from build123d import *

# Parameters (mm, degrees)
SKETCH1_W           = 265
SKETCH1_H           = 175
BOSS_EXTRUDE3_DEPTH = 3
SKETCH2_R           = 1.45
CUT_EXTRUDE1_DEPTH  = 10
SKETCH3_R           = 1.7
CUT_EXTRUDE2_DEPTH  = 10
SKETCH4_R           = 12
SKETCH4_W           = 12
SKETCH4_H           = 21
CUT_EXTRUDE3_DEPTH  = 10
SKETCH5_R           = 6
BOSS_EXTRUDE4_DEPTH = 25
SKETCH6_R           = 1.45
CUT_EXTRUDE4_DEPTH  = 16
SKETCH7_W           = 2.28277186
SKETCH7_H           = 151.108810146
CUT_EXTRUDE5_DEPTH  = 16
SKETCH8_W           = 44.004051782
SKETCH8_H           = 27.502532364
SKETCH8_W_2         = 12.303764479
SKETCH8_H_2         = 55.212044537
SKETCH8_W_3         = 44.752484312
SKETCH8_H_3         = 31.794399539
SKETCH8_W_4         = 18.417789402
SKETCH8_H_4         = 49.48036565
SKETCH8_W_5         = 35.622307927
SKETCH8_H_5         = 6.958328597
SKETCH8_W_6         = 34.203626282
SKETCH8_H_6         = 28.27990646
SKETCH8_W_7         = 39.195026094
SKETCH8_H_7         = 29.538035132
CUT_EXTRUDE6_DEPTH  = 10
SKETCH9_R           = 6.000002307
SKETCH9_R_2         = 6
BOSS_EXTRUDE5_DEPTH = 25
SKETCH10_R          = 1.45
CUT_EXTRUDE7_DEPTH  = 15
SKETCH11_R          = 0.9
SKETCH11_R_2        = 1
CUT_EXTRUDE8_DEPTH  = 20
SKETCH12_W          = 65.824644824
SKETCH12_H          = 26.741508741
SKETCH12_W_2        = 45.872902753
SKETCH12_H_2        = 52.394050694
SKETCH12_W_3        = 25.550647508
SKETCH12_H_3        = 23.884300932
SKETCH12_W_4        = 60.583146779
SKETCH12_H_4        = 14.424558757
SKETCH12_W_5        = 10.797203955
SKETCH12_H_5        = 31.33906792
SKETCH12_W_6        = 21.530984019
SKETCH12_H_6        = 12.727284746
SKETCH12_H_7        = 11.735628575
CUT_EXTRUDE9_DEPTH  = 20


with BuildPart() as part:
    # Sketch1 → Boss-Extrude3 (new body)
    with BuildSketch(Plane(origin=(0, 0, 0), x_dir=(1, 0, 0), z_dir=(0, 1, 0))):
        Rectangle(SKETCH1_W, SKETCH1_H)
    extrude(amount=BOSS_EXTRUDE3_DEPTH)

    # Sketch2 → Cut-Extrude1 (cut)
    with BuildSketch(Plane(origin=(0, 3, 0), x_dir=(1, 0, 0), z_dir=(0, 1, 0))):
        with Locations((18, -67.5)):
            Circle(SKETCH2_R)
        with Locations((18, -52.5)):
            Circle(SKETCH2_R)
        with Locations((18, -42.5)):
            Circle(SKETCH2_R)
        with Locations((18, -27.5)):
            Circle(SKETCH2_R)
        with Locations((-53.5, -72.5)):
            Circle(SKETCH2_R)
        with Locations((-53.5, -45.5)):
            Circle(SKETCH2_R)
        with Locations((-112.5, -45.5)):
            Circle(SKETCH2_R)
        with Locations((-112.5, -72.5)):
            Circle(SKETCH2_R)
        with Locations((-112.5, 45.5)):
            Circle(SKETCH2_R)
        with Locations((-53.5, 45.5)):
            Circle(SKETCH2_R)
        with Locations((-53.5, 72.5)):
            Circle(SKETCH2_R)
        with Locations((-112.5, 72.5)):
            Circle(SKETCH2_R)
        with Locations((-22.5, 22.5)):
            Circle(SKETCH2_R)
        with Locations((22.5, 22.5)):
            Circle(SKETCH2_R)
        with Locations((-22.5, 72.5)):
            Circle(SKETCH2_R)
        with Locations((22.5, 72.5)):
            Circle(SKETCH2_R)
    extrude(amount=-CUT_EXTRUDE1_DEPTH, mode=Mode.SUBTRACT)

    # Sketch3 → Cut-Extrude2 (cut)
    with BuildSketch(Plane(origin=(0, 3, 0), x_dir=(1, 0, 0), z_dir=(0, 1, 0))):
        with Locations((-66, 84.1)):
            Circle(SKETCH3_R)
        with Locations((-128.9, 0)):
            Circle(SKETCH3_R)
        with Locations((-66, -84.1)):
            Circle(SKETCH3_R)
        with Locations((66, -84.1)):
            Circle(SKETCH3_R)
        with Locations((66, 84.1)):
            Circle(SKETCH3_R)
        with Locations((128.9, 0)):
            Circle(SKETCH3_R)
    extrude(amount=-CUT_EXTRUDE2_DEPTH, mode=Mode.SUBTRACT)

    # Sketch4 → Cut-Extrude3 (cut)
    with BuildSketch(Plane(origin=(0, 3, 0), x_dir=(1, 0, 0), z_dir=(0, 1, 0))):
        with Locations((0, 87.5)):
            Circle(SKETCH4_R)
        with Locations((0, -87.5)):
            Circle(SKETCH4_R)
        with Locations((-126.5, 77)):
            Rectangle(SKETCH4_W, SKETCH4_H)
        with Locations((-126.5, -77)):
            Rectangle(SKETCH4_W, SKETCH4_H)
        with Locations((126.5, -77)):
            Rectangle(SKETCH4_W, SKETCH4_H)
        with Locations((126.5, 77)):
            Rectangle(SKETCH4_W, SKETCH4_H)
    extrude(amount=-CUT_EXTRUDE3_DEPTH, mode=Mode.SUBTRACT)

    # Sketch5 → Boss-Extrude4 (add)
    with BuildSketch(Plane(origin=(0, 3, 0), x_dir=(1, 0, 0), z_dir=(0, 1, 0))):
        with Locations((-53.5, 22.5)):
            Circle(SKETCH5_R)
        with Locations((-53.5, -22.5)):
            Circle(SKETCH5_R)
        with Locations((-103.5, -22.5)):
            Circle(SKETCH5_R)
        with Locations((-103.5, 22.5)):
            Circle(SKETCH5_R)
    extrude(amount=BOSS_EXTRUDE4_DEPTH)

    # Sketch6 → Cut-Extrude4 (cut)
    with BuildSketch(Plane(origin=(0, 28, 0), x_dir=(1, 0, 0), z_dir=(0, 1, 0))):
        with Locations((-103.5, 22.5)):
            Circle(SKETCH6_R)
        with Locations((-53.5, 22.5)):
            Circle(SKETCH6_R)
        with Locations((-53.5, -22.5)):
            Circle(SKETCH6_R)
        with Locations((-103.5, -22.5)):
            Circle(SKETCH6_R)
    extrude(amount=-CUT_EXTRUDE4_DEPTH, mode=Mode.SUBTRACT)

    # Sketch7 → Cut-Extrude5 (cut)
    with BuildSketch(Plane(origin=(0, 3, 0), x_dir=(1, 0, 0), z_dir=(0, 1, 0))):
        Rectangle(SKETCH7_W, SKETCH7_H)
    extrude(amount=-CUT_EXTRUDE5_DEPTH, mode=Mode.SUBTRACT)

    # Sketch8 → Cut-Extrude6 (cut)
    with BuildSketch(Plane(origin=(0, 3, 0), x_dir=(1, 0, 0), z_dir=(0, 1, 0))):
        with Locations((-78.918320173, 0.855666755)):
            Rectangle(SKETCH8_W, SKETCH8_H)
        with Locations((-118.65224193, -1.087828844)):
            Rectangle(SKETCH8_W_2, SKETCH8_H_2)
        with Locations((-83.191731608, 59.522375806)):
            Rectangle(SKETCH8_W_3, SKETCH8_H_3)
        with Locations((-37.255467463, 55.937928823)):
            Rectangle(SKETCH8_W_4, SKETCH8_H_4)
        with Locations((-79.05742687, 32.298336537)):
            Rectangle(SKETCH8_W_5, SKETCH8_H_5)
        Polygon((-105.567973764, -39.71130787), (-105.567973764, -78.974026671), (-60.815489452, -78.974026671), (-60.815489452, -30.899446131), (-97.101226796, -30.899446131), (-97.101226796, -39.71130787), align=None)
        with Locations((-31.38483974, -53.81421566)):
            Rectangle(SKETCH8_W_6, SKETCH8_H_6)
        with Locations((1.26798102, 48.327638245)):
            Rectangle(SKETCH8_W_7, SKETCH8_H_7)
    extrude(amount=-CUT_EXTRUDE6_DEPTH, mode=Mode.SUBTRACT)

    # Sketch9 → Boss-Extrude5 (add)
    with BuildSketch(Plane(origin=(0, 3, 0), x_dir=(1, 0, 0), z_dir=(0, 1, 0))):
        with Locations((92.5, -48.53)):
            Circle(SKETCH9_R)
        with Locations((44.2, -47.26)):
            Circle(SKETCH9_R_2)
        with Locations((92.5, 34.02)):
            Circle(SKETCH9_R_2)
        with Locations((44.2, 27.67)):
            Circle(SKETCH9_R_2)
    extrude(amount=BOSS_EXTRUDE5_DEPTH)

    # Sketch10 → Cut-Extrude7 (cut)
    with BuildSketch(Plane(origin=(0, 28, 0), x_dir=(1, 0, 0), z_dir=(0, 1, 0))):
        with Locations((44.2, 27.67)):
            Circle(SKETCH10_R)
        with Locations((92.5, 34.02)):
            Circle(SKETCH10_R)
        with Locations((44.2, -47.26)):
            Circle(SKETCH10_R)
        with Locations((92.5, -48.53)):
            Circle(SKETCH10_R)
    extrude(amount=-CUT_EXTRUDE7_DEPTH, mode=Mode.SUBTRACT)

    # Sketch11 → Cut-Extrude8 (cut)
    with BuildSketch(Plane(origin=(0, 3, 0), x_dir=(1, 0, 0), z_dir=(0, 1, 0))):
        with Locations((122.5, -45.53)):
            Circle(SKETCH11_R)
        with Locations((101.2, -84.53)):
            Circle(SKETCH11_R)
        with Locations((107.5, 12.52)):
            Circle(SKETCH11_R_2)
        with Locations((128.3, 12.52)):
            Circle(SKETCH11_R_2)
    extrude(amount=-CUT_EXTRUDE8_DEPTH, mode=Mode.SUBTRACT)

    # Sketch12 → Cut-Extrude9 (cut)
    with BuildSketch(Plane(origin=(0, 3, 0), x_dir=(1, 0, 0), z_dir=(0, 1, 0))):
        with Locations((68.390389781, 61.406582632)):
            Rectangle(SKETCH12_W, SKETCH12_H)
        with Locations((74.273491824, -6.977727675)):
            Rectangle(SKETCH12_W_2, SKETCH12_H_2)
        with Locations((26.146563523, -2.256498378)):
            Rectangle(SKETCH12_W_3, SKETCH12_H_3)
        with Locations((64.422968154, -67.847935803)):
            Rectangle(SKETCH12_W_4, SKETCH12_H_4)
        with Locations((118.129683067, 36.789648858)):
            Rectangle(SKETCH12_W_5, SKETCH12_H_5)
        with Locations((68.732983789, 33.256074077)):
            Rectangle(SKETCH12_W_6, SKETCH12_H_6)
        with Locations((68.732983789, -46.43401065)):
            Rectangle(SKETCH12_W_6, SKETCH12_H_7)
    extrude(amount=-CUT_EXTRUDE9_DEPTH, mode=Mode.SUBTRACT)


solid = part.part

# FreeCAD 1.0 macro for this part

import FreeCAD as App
import Part
import Sketcher

V = App.Vector
Q = App.Units.Quantity

doc = App.newDocument("Part")
body = doc.addObject("PartDesign::Body", "Body")
body.AllowCompound = True

# Sketch on XZ plane
sketch1 = body.newObject("Sketcher::SketchObject", "Sketch")
sketch1.AttachmentSupport = (doc.getObject("XZ_Plane"), [""])
sketch1.MapMode = "FlatFace"
sketch1.addGeometry([
    Part.LineSegment(V(-132, -88, 0), V(-132, 88, 0)),
    Part.LineSegment(V(-132, 88, 0), V(132, 88, 0)),
    Part.LineSegment(V(132, 88, 0), V(132, -88, 0)),
    Part.LineSegment(V(132, -88, 0), V(-132, -88, 0)),
], False)
sketch1.addConstraint([
    Sketcher.Constraint("Coincident", 0, 2, 1, 1),
    Sketcher.Constraint("Coincident", 1, 2, 2, 1),
    Sketcher.Constraint("Coincident", 2, 2, 3, 1),
    Sketcher.Constraint("Coincident", 3, 2, 0, 1),
    Sketcher.Constraint("Vertical", 0),
    Sketcher.Constraint("Horizontal", 1),
    Sketcher.Constraint("Vertical", 2),
    Sketcher.Constraint("Horizontal", 3),
    Sketcher.Constraint("Symmetric", 0, 2, 2, 2, -1, 1),
    Sketcher.Constraint("DistanceX", 1, 1, 1, 2, Q("265 mm")),
    Sketcher.Constraint("DistanceY", 0, 1, 0, 2, Q("175 mm")),
])
pad1 = body.newObject("PartDesign::Pad", "Pad")
pad1.Profile = sketch1
pad1.Length = 3
pad1.Reversed = True

# Sketch on XZ plane
sketch2 = body.newObject("Sketcher::SketchObject", "Sketch001")
sketch2.AttachmentSupport = (doc.getObject("XZ_Plane"), [""])
sketch2.MapMode = "FlatFace"
sketch2.AttachmentOffset = App.Placement(V(0, 0, -3), App.Rotation())
sketch2.addGeometry([
    Part.Circle(V(18, 67.5, 0), V(0, 0, 1), 1.4),  # 0
    Part.Circle(V(18, 52.5, 0), V(0, 0, 1), 1.4),  # 1
    Part.Circle(V(18, 42.5, 0), V(0, 0, 1), 1.4),  # 2
    Part.Circle(V(18, 27.5, 0), V(0, 0, 1), 1.4),  # 3
    Part.Circle(V(-53.5, 72.5, 0), V(0, 0, 1), 1.4),  # 4
    Part.Circle(V(-53.5, 45.5, 0), V(0, 0, 1), 1.4),  # 5
    Part.Circle(V(-112.5, 45.5, 0), V(0, 0, 1), 1.4),  # 6
    Part.Circle(V(-112.5, 72.5, 0), V(0, 0, 1), 1.4),  # 7
    Part.Circle(V(-112.5, -45.5, 0), V(0, 0, 1), 1.4),  # 8
    Part.Circle(V(-53.5, -45.5, 0), V(0, 0, 1), 1.4),  # 9
    Part.Circle(V(-53.5, -72.5, 0), V(0, 0, 1), 1.4),  # 10
    Part.Circle(V(-112.5, -72.5, 0), V(0, 0, 1), 1.4),  # 11
    Part.Circle(V(-22.5, -22.5, 0), V(0, 0, 1), 1.4),  # 12
    Part.Circle(V(22.5, -22.5, 0), V(0, 0, 1), 1.4),  # 13
    Part.Circle(V(-22.5, -72.5, 0), V(0, 0, 1), 1.4),  # 14
    Part.Circle(V(22.5, -72.5, 0), V(0, 0, 1), 1.4),  # 15
], False)
sketch2.addConstraint([
    Sketcher.Constraint("Equal", 0, 1),
    Sketcher.Constraint("Equal", 1, 2),
    Sketcher.Constraint("Equal", 2, 3),
    Sketcher.Constraint("Equal", 3, 4),
    Sketcher.Constraint("Equal", 4, 5),
    Sketcher.Constraint("Equal", 5, 6),
    Sketcher.Constraint("Equal", 6, 7),
    Sketcher.Constraint("Equal", 7, 8),
    Sketcher.Constraint("Equal", 8, 9),
    Sketcher.Constraint("Equal", 9, 10),
    Sketcher.Constraint("Equal", 10, 11),
    Sketcher.Constraint("Equal", 11, 12),
    Sketcher.Constraint("Equal", 12, 13),
    Sketcher.Constraint("Equal", 13, 14),
    Sketcher.Constraint("Equal", 14, 15),
    Sketcher.Constraint("Symmetric", 12, 3, 13, 3, -2),
    Sketcher.Constraint("Symmetric", 14, 3, 15, 3, -2),
    Sketcher.Constraint("Symmetric", 6, 3, 8, 3, -1),
    Sketcher.Constraint("Symmetric", 5, 3, 9, 3, -1),
    Sketcher.Constraint("Symmetric", 4, 3, 10, 3, -1),
    Sketcher.Constraint("Symmetric", 7, 3, 11, 3, -1),
    Sketcher.Constraint("Horizontal", 5, 3, 6, 3),
    Sketcher.Constraint("Horizontal", 4, 3, 7, 3),
    Sketcher.Constraint("Horizontal", 11, 3, 14, 3),
    Sketcher.Constraint("Vertical", 0, 3, 1, 3),
    Sketcher.Constraint("Vertical", 1, 3, 2, 3),
    Sketcher.Constraint("Vertical", 2, 3, 3, 3),
    Sketcher.Constraint("Vertical", 4, 3, 5, 3),
    Sketcher.Constraint("Vertical", 6, 3, 7, 3),
    Sketcher.Constraint("Vertical", 12, 3, 14, 3),
    Sketcher.Constraint("Diameter", 0, Q("2.9 mm")),
    Sketcher.Constraint("DistanceX", -1, 1, 0, 3, Q("18 mm")),
    Sketcher.Constraint("DistanceY", 1, 3, 0, 3, Q("15 mm")),
    Sketcher.Constraint("DistanceY", 2, 3, 1, 3, Q("10 mm")),
    Sketcher.Constraint("DistanceY", 3, 3, 2, 3, Q("15 mm")),
    Sketcher.Constraint("DistanceY", 0, 3, 4, 3, Q("5 mm")),
    Sketcher.Constraint("DistanceY", 5, 3, 4, 3, Q("27 mm")),
    Sketcher.Constraint("DistanceX", 6, 3, 5, 3, Q("59 mm")),
    Sketcher.Constraint("DistanceY", 8, 3, 6, 3, Q("91 mm")),
    Sketcher.Constraint("DistanceX", 9, 3, 12, 3, Q("31 mm")),
    Sketcher.Constraint("DistanceY", 9, 3, 12, 3, Q("23 mm")),
    Sketcher.Constraint("DistanceX", 12, 3, 13, 3, Q("45 mm")),
])
pocket1 = body.newObject("PartDesign::Pocket", "Pocket")
pocket1.Profile = sketch2
pocket1.Length = 10
pocket1.Reversed = True

# Sketch on XZ plane
sketch3 = body.newObject("Sketcher::SketchObject", "Sketch002")
sketch3.AttachmentSupport = (doc.getObject("XZ_Plane"), [""])
sketch3.MapMode = "FlatFace"
sketch3.AttachmentOffset = App.Placement(V(0, 0, -3), App.Rotation())
sketch3.addGeometry([
    Part.Circle(V(-66, -84.1, 0), V(0, 0, 1), 1.7),  # 0
    Part.Circle(V(-128.9, 0, 0), V(0, 0, 1), 1.7),  # 1
    Part.Circle(V(-66, 84.1, 0), V(0, 0, 1), 1.7),  # 2
    Part.Circle(V(66, 84.1, 0), V(0, 0, 1), 1.7),  # 3
    Part.Circle(V(66, -84.1, 0), V(0, 0, 1), 1.7),  # 4
    Part.Circle(V(128.9, 0, 0), V(0, 0, 1), 1.7),  # 5
], False)
sketch3.addConstraint([
    Sketcher.Constraint("Equal", 0, 1),
    Sketcher.Constraint("Equal", 1, 2),
    Sketcher.Constraint("Equal", 2, 3),
    Sketcher.Constraint("Equal", 3, 4),
    Sketcher.Constraint("Equal", 4, 5),
    Sketcher.Constraint("Symmetric", 0, 3, 3, 3, -1, 1),
    Sketcher.Constraint("Symmetric", 2, 3, 4, 3, -1, 1),
    Sketcher.Constraint("Symmetric", 1, 3, 5, 3, -1, 1),
    Sketcher.Constraint("Symmetric", 2, 3, 3, 3, -2),
    Sketcher.Constraint("PointOnObject", 1, 3, -1),
    Sketcher.Constraint("Diameter", 0, Q("3.4 mm")),
    Sketcher.Constraint("DistanceX", 0, 3, -1, 1, Q("66 mm")),
    Sketcher.Constraint("DistanceY", 0, 3, -1, 1, Q("84.1 mm")),
    Sketcher.Constraint("DistanceX", 1, 3, -1, 1, Q("128.9 mm")),
])
pocket2 = body.newObject("PartDesign::Pocket", "Pocket001")
pocket2.Profile = sketch3
pocket2.Length = 10
pocket2.Reversed = True

# Sketch on XZ plane
sketch4 = body.newObject("Sketcher::SketchObject", "Sketch003")
sketch4.AttachmentSupport = (doc.getObject("XZ_Plane"), [""])
sketch4.MapMode = "FlatFace"
sketch4.AttachmentOffset = App.Placement(V(0, 0, -3), App.Rotation())
sketch4.addGeometry([
    Part.Circle(V(0, -88, 0), V(0, 0, 1), 12),  # 0
    Part.Circle(V(0, 88, 0), V(0, 0, 1), 12),  # 1
    Part.LineSegment(V(-132, -88, 0), V(-132, -66, 0)),  # 2
    Part.LineSegment(V(-132, -66, 0), V(-120, -66, 0)),  # 3
    Part.LineSegment(V(-120, -66, 0), V(-120, -88, 0)),  # 4
    Part.LineSegment(V(-120, -88, 0), V(-132, -88, 0)),  # 5
    Part.LineSegment(V(-132, 66, 0), V(-132, 88, 0)),  # 6
    Part.LineSegment(V(-132, 88, 0), V(-120, 88, 0)),  # 7
    Part.LineSegment(V(-120, 88, 0), V(-120, 66, 0)),  # 8
    Part.LineSegment(V(-120, 66, 0), V(-132, 66, 0)),  # 9
    Part.LineSegment(V(120, 66, 0), V(120, 88, 0)),  # 10
    Part.LineSegment(V(120, 88, 0), V(132, 88, 0)),  # 11
    Part.LineSegment(V(132, 88, 0), V(132, 66, 0)),  # 12
    Part.LineSegment(V(132, 66, 0), V(120, 66, 0)),  # 13
    Part.LineSegment(V(120, -88, 0), V(120, -66, 0)),  # 14
    Part.LineSegment(V(120, -66, 0), V(132, -66, 0)),  # 15
    Part.LineSegment(V(132, -66, 0), V(132, -88, 0)),  # 16
    Part.LineSegment(V(132, -88, 0), V(120, -88, 0)),  # 17
], False)
sketch4.addConstraint([
    Sketcher.Constraint("Coincident", 2, 2, 3, 1),
    Sketcher.Constraint("Coincident", 3, 2, 4, 1),
    Sketcher.Constraint("Coincident", 4, 2, 5, 1),
    Sketcher.Constraint("Coincident", 5, 2, 2, 1),
    Sketcher.Constraint("Coincident", 6, 2, 7, 1),
    Sketcher.Constraint("Coincident", 7, 2, 8, 1),
    Sketcher.Constraint("Coincident", 8, 2, 9, 1),
    Sketcher.Constraint("Coincident", 9, 2, 6, 1),
    Sketcher.Constraint("Coincident", 10, 2, 11, 1),
    Sketcher.Constraint("Coincident", 11, 2, 12, 1),
    Sketcher.Constraint("Coincident", 12, 2, 13, 1),
    Sketcher.Constraint("Coincident", 13, 2, 10, 1),
    Sketcher.Constraint("Coincident", 14, 2, 15, 1),
    Sketcher.Constraint("Coincident", 15, 2, 16, 1),
    Sketcher.Constraint("Coincident", 16, 2, 17, 1),
    Sketcher.Constraint("Coincident", 17, 2, 14, 1),
    Sketcher.Constraint("Vertical", 2),
    Sketcher.Constraint("Horizontal", 3),
    Sketcher.Constraint("Vertical", 4),
    Sketcher.Constraint("Horizontal", 5),
    Sketcher.Constraint("Vertical", 6),
    Sketcher.Constraint("Horizontal", 7),
    Sketcher.Constraint("Vertical", 8),
    Sketcher.Constraint("Horizontal", 9),
    Sketcher.Constraint("Vertical", 10),
    Sketcher.Constraint("Horizontal", 11),
    Sketcher.Constraint("Vertical", 12),
    Sketcher.Constraint("Horizontal", 13),
    Sketcher.Constraint("Vertical", 14),
    Sketcher.Constraint("Horizontal", 15),
    Sketcher.Constraint("Vertical", 16),
    Sketcher.Constraint("Horizontal", 17),
    Sketcher.Constraint("Equal", 0, 1),
    Sketcher.Constraint("Symmetric", 0, 3, 1, 3, -1, 1),
    Sketcher.Constraint("Symmetric", 4, 2, 10, 2, -1, 1),
    Sketcher.Constraint("Symmetric", 2, 2, 12, 2, -1, 1),
    Sketcher.Constraint("Symmetric", 8, 2, 14, 2, -1, 1),
    Sketcher.Constraint("Symmetric", 6, 2, 16, 2, -1, 1),
    Sketcher.Constraint("Symmetric", 7, 2, 10, 2, -2),
    Sketcher.Constraint("Symmetric", 9, 2, 12, 2, -2),
    Sketcher.Constraint("PointOnObject", 0, 3, -2),
    Sketcher.Constraint("Horizontal", 0, 3, 4, 2),
    Sketcher.Constraint("Diameter", 0, Q("24 mm")),
    Sketcher.Constraint("DistanceX", 3, 1, 3, 2, Q("12 mm")),
    Sketcher.Constraint("DistanceY", 2, 1, 2, 2, Q("21 mm")),
    Sketcher.Constraint("DistanceY", 0, 3, 1, 3, Q("175 mm")),
    Sketcher.Constraint("DistanceX", 7, 2, 10, 2, Q("241 mm")),
])
pocket3 = body.newObject("PartDesign::Pocket", "Pocket002")
pocket3.Profile = sketch4
pocket3.Length = 10
pocket3.Reversed = True

# Sketch on XZ plane
sketch5 = body.newObject("Sketcher::SketchObject", "Sketch004")
sketch5.AttachmentSupport = (doc.getObject("XZ_Plane"), [""])
sketch5.MapMode = "FlatFace"
sketch5.AttachmentOffset = App.Placement(V(0, 0, -3), App.Rotation())
sketch5.addGeometry([
    Part.Circle(V(-54, -22, 0), V(0, 0, 1), 6),
    Part.Circle(V(-54, 22, 0), V(0, 0, 1), 6),
    Part.Circle(V(-104, 22, 0), V(0, 0, 1), 6),
    Part.Circle(V(-104, -22, 0), V(0, 0, 1), 6),
], False)
sketch5.addConstraint([
    Sketcher.Constraint("Equal", 0, 1),
    Sketcher.Constraint("Equal", 1, 2),
    Sketcher.Constraint("Equal", 2, 3),
    Sketcher.Constraint("Symmetric", 0, 3, 1, 3, -1),
    Sketcher.Constraint("Symmetric", 2, 3, 3, 3, -1),
    Sketcher.Constraint("Horizontal", 1, 3, 2, 3),
    Sketcher.Constraint("Diameter", 0, Q("12 mm")),
    Sketcher.Constraint("DistanceY", 0, 3, 1, 3, Q("45 mm")),
    Sketcher.Constraint("DistanceX", 2, 3, 1, 3, Q("50 mm")),
    Sketcher.Constraint("DistanceX", 0, 3, -1, 1, Q("53.5 mm")),
])
pad2 = body.newObject("PartDesign::Pad", "Pad001")
pad2.Profile = sketch5
pad2.Length = 25
pad2.Reversed = True

# Sketch on XZ plane
sketch6 = body.newObject("Sketcher::SketchObject", "Sketch005")
sketch6.AttachmentSupport = (doc.getObject("XZ_Plane"), [""])
sketch6.MapMode = "FlatFace"
sketch6.AttachmentOffset = App.Placement(V(0, 0, -28), App.Rotation())
sketch6.addGeometry([
    Part.Circle(V(-103.5, -22.5, 0), V(0, 0, 1), 1.4),
    Part.Circle(V(-53.5, -22.5, 0), V(0, 0, 1), 1.4),
    Part.Circle(V(-53.5, 22.5, 0), V(0, 0, 1), 1.4),
    Part.Circle(V(-103.5, 22.5, 0), V(0, 0, 1), 1.4),
], False)
sketch6.addConstraint([
    Sketcher.Constraint("Equal", 0, 1),
    Sketcher.Constraint("Equal", 1, 2),
    Sketcher.Constraint("Equal", 2, 3),
    Sketcher.Constraint("Symmetric", 1, 3, 2, 3, -1),
    Sketcher.Constraint("Symmetric", 0, 3, 3, 3, -1),
    Sketcher.Constraint("Horizontal", 0, 3, 1, 3),
    Sketcher.Constraint("Diameter", 0, Q("2.9 mm")),
    Sketcher.Constraint("DistanceX", 0, 3, 1, 3, Q("50 mm")),
    Sketcher.Constraint("DistanceY", 1, 3, 2, 3, Q("45 mm")),
    Sketcher.Constraint("DistanceX", 0, 3, -1, 1, Q("103.5 mm")),
])
pocket4 = body.newObject("PartDesign::Pocket", "Pocket003")
pocket4.Profile = sketch6
pocket4.Length = 16
pocket4.Reversed = True

# Sketch on XZ plane
sketch7 = body.newObject("Sketcher::SketchObject", "Sketch006")
sketch7.AttachmentSupport = (doc.getObject("XZ_Plane"), [""])
sketch7.MapMode = "FlatFace"
sketch7.AttachmentOffset = App.Placement(V(0, 0, -3), App.Rotation())
sketch7.addGeometry([
    Part.LineSegment(V(-1.1, -75.6, 0), V(-1.1, 75.6, 0)),
    Part.LineSegment(V(-1.1, 75.6, 0), V(1.1, 75.6, 0)),
    Part.LineSegment(V(1.1, 75.6, 0), V(1.1, -75.6, 0)),
    Part.LineSegment(V(1.1, -75.6, 0), V(-1.1, -75.6, 0)),
], False)
sketch7.addConstraint([
    Sketcher.Constraint("Coincident", 0, 2, 1, 1),
    Sketcher.Constraint("Coincident", 1, 2, 2, 1),
    Sketcher.Constraint("Coincident", 2, 2, 3, 1),
    Sketcher.Constraint("Coincident", 3, 2, 0, 1),
    Sketcher.Constraint("Vertical", 0),
    Sketcher.Constraint("Horizontal", 1),
    Sketcher.Constraint("Vertical", 2),
    Sketcher.Constraint("Horizontal", 3),
    Sketcher.Constraint("Symmetric", 0, 2, 2, 2, -1, 1),
    Sketcher.Constraint("DistanceX", 1, 1, 1, 2, Q("2.282772 mm")),
    Sketcher.Constraint("DistanceY", 0, 1, 0, 2, Q("151.10881 mm")),
])
pocket5 = body.newObject("PartDesign::Pocket", "Pocket004")
pocket5.Profile = sketch7
pocket5.Length = 16
pocket5.Reversed = True

# Sketch on XZ plane
sketch8 = body.newObject("Sketcher::SketchObject", "Sketch007")
sketch8.AttachmentSupport = (doc.getObject("XZ_Plane"), [""])
sketch8.MapMode = "FlatFace"
sketch8.AttachmentOffset = App.Placement(V(0, 0, -3), App.Rotation())
sketch8.addGeometry([
    Part.LineSegment(V(-101, -15, 0), V(-101, 13, 0)),  # 0
    Part.LineSegment(V(-101, 13, 0), V(-57, 13, 0)),  # 1
    Part.LineSegment(V(-57, 13, 0), V(-57, -15, 0)),  # 2
    Part.LineSegment(V(-57, -15, 0), V(-101, -15, 0)),  # 3
    Part.LineSegment(V(-125, -27, 0), V(-125, 29, 0)),  # 4
    Part.LineSegment(V(-125, 29, 0), V(-113, 29, 0)),  # 5
    Part.LineSegment(V(-113, 29, 0), V(-113, -27, 0)),  # 6
    Part.LineSegment(V(-113, -27, 0), V(-125, -27, 0)),  # 7
    Part.LineSegment(V(-106, -75, 0), V(-106, -44, 0)),  # 8
    Part.LineSegment(V(-106, -44, 0), V(-61, -44, 0)),  # 9
    Part.LineSegment(V(-61, -44, 0), V(-61, -75, 0)),  # 10
    Part.LineSegment(V(-61, -75, 0), V(-106, -75, 0)),  # 11
    Part.LineSegment(V(-46, -81, 0), V(-46, -31, 0)),  # 12
    Part.LineSegment(V(-46, -31, 0), V(-28, -31, 0)),  # 13
    Part.LineSegment(V(-28, -31, 0), V(-28, -81, 0)),  # 14
    Part.LineSegment(V(-28, -81, 0), V(-46, -81, 0)),  # 15
    Part.LineSegment(V(-97, -36, 0), V(-97, -29, 0)),  # 16
    Part.LineSegment(V(-97, -29, 0), V(-61, -29, 0)),  # 17
    Part.LineSegment(V(-61, -29, 0), V(-61, -36, 0)),  # 18
    Part.LineSegment(V(-61, -36, 0), V(-97, -36, 0)),  # 19
    Part.LineSegment(V(-106, 40, 0), V(-106, 79, 0)),  # 20
    Part.LineSegment(V(-106, 79, 0), V(-61, 79, 0)),  # 21
    Part.LineSegment(V(-61, 79, 0), V(-61, 31, 0)),  # 22
    Part.LineSegment(V(-61, 31, 0), V(-97, 31, 0)),  # 23
    Part.LineSegment(V(-97, 31, 0), V(-97, 40, 0)),  # 24
    Part.LineSegment(V(-97, 40, 0), V(-106, 40, 0)),  # 25
    Part.LineSegment(V(-48, 40, 0), V(-48, 68, 0)),  # 26
    Part.LineSegment(V(-48, 68, 0), V(-14, 68, 0)),  # 27
    Part.LineSegment(V(-14, 68, 0), V(-14, 40, 0)),  # 28
    Part.LineSegment(V(-14, 40, 0), V(-48, 40, 0)),  # 29
    Part.LineSegment(V(-18, -63, 0), V(-18, -34, 0)),  # 30
    Part.LineSegment(V(-18, -34, 0), V(21, -34, 0)),  # 31
    Part.LineSegment(V(21, -34, 0), V(21, -63, 0)),  # 32
    Part.LineSegment(V(21, -63, 0), V(-18, -63, 0)),  # 33
], False)
sketch8.addConstraint([
    Sketcher.Constraint("Coincident", 0, 2, 1, 1),
    Sketcher.Constraint("Coincident", 1, 2, 2, 1),
    Sketcher.Constraint("Coincident", 2, 2, 3, 1),
    Sketcher.Constraint("Coincident", 3, 2, 0, 1),
    Sketcher.Constraint("Coincident", 4, 2, 5, 1),
    Sketcher.Constraint("Coincident", 5, 2, 6, 1),
    Sketcher.Constraint("Coincident", 6, 2, 7, 1),
    Sketcher.Constraint("Coincident", 7, 2, 4, 1),
    Sketcher.Constraint("Coincident", 8, 2, 9, 1),
    Sketcher.Constraint("Coincident", 9, 2, 10, 1),
    Sketcher.Constraint("Coincident", 10, 2, 11, 1),
    Sketcher.Constraint("Coincident", 11, 2, 8, 1),
    Sketcher.Constraint("Coincident", 12, 2, 13, 1),
    Sketcher.Constraint("Coincident", 13, 2, 14, 1),
    Sketcher.Constraint("Coincident", 14, 2, 15, 1),
    Sketcher.Constraint("Coincident", 15, 2, 12, 1),
    Sketcher.Constraint("Coincident", 16, 2, 17, 1),
    Sketcher.Constraint("Coincident", 17, 2, 18, 1),
    Sketcher.Constraint("Coincident", 18, 2, 19, 1),
    Sketcher.Constraint("Coincident", 19, 2, 16, 1),
    Sketcher.Constraint("Coincident", 20, 2, 21, 1),
    Sketcher.Constraint("Coincident", 21, 2, 22, 1),
    Sketcher.Constraint("Coincident", 22, 2, 23, 1),
    Sketcher.Constraint("Coincident", 23, 2, 24, 1),
    Sketcher.Constraint("Coincident", 24, 2, 25, 1),
    Sketcher.Constraint("Coincident", 25, 2, 20, 1),
    Sketcher.Constraint("Coincident", 26, 2, 27, 1),
    Sketcher.Constraint("Coincident", 27, 2, 28, 1),
    Sketcher.Constraint("Coincident", 28, 2, 29, 1),
    Sketcher.Constraint("Coincident", 29, 2, 26, 1),
    Sketcher.Constraint("Coincident", 30, 2, 31, 1),
    Sketcher.Constraint("Coincident", 31, 2, 32, 1),
    Sketcher.Constraint("Coincident", 32, 2, 33, 1),
    Sketcher.Constraint("Coincident", 33, 2, 30, 1),
    Sketcher.Constraint("Vertical", 0),
    Sketcher.Constraint("Horizontal", 1),
    Sketcher.Constraint("Vertical", 2),
    Sketcher.Constraint("Horizontal", 3),
    Sketcher.Constraint("Vertical", 4),
    Sketcher.Constraint("Horizontal", 5),
    Sketcher.Constraint("Vertical", 6),
    Sketcher.Constraint("Horizontal", 7),
    Sketcher.Constraint("Vertical", 8),
    Sketcher.Constraint("Horizontal", 9),
    Sketcher.Constraint("Vertical", 10),
    Sketcher.Constraint("Horizontal", 11),
    Sketcher.Constraint("Vertical", 12),
    Sketcher.Constraint("Horizontal", 13),
    Sketcher.Constraint("Vertical", 14),
    Sketcher.Constraint("Horizontal", 15),
    Sketcher.Constraint("Vertical", 16),
    Sketcher.Constraint("Horizontal", 17),
    Sketcher.Constraint("Vertical", 18),
    Sketcher.Constraint("Horizontal", 19),
    Sketcher.Constraint("Vertical", 20),
    Sketcher.Constraint("Horizontal", 21),
    Sketcher.Constraint("Vertical", 22),
    Sketcher.Constraint("Horizontal", 23),
    Sketcher.Constraint("Vertical", 24),
    Sketcher.Constraint("Horizontal", 25),
    Sketcher.Constraint("Vertical", 26),
    Sketcher.Constraint("Horizontal", 27),
    Sketcher.Constraint("Vertical", 28),
    Sketcher.Constraint("Horizontal", 29),
    Sketcher.Constraint("Vertical", 30),
    Sketcher.Constraint("Horizontal", 31),
    Sketcher.Constraint("Vertical", 32),
    Sketcher.Constraint("Horizontal", 33),
    Sketcher.Constraint("Vertical", 11, 2, 20, 2),
    Sketcher.Constraint("Vertical", 10, 2, 21, 2),
    Sketcher.Constraint("DistanceY", 8, 1, 8, 2, Q("31.7944 mm")),
    Sketcher.Constraint("DistanceX", 1, 1, 1, 2, Q("44.004052 mm")),
    Sketcher.Constraint("DistanceX", 13, 1, 13, 2, Q("18.417789 mm")),
    Sketcher.Constraint("DistanceY", 16, 1, 16, 2, Q("6.958329 mm")),
    Sketcher.Constraint("DistanceY", 20, 1, 20, 2, Q("39.262719 mm")),
    Sketcher.Constraint("DistanceY", 22, 2, 22, 1, Q("48.074581 mm")),
    Sketcher.Constraint("DistanceY", -1, 1, 0, 2, Q("12.895599 mm")),
    Sketcher.Constraint("DistanceY", 18, 2, -1, 1, Q("35.777501 mm")),
    Sketcher.Constraint("DistanceX", 17, 2, 13, 2, Q("33.1997 mm")),
    Sketcher.Constraint("DistanceX", 24, 2, 27, 2, Q("82.8182 mm")),
    Sketcher.Constraint("DistanceX", 5, 1, 5, 2, Q("12.303764 mm")),
    Sketcher.Constraint("DistanceX", 9, 1, 9, 2, Q("44.752484 mm")),
    Sketcher.Constraint("DistanceX", 17, 1, 17, 2, Q("35.622308 mm")),
    Sketcher.Constraint("DistanceX", 23, 2, 23, 1, Q("36.285737 mm")),
    Sketcher.Constraint("DistanceX", 27, 1, 27, 2, Q("34.203626 mm")),
    Sketcher.Constraint("DistanceX", 31, 1, 31, 2, Q("39.195026 mm")),
    Sketcher.Constraint("DistanceY", 0, 1, 0, 2, Q("27.502532 mm")),
    Sketcher.Constraint("DistanceY", 4, 1, 4, 2, Q("55.212045 mm")),
    Sketcher.Constraint("DistanceY", 12, 1, 12, 2, Q("49.480366 mm")),
    Sketcher.Constraint("DistanceY", 26, 1, 26, 2, Q("28.279906 mm")),
    Sketcher.Constraint("DistanceY", 30, 1, 30, 2, Q("29.538035 mm")),
    Sketcher.Constraint("DistanceY", -1, 1, 4, 2, Q("28.693851 mm")),
    Sketcher.Constraint("DistanceX", 5, 2, -1, 1, Q("112.50036 mm")),
    Sketcher.Constraint("DistanceX", 9, 2, -1, 1, Q("60.815489 mm")),
    Sketcher.Constraint("DistanceY", 14, 2, -1, 1, Q("80.678112 mm")),
    Sketcher.Constraint("DistanceX", 16, 2, -1, 1, Q("96.868581 mm")),
    Sketcher.Constraint("DistanceY", -1, 1, 26, 2, Q("67.954169 mm")),
    Sketcher.Constraint("DistanceY", 30, 2, -1, 1, Q("33.558621 mm")),
    Sketcher.Constraint("DistanceX", 4, 2, 0, 2, Q("23.883778 mm")),
    Sketcher.Constraint("DistanceY", 9, 2, 12, 2, Q("12.42743 mm")),
    Sketcher.Constraint("DistanceY", 3, 2, 20, 2, Q("93.58096 mm")),
    Sketcher.Constraint("DistanceX", 13, 2, 30, 2, Q("9.717041 mm")),
])
pocket6 = body.newObject("PartDesign::Pocket", "Pocket005")
pocket6.Profile = sketch8
pocket6.Length = 10
pocket6.Reversed = True

# Sketch on XZ plane
sketch9 = body.newObject("Sketcher::SketchObject", "Sketch008")
sketch9.AttachmentSupport = (doc.getObject("XZ_Plane"), [""])
sketch9.MapMode = "FlatFace"
sketch9.AttachmentOffset = App.Placement(V(0, 0, -3), App.Rotation())
sketch9.addGeometry([
    Part.Circle(V(92, 49, 0), V(0, 0, 1), 6),
    Part.Circle(V(44, 47, 0), V(0, 0, 1), 6),
    Part.Circle(V(92, -34, 0), V(0, 0, 1), 6),
    Part.Circle(V(44, -28, 0), V(0, 0, 1), 6),
], False)
sketch9.addConstraint([
    Sketcher.Constraint("Equal", 1, 2),
    Sketcher.Constraint("Equal", 2, 3),
    Sketcher.Constraint("Vertical", 0, 3, 2, 3),
    Sketcher.Constraint("Vertical", 1, 3, 3, 3),
    Sketcher.Constraint("Diameter", 1, Q("12 mm")),
    Sketcher.Constraint("DistanceX", -1, 1, 0, 3, Q("92.5 mm")),
    Sketcher.Constraint("DistanceX", -1, 1, 1, 3, Q("44.2 mm")),
    Sketcher.Constraint("DistanceY", 3, 3, 0, 3, Q("76.2 mm")),
    Sketcher.Constraint("DistanceY", -1, 1, 0, 3, Q("48.53 mm")),
    Sketcher.Constraint("DistanceY", -1, 1, 1, 3, Q("47.26 mm")),
    Sketcher.Constraint("DistanceY", 2, 3, -1, 1, Q("34.02 mm")),
    Sketcher.Constraint("Diameter", 0, Q("12.000005 mm")),
])
pad3 = body.newObject("PartDesign::Pad", "Pad002")
pad3.Profile = sketch9
pad3.Length = 25
pad3.Reversed = True

# Sketch on XZ plane
sketch10 = body.newObject("Sketcher::SketchObject", "Sketch009")
sketch10.AttachmentSupport = (doc.getObject("XZ_Plane"), [""])
sketch10.MapMode = "FlatFace"
sketch10.AttachmentOffset = App.Placement(V(0, 0, -28), App.Rotation())
sketch10.addGeometry([
    Part.Circle(V(44.2, -27.7, 0), V(0, 0, 1), 1.4),
    Part.Circle(V(92.5, -34, 0), V(0, 0, 1), 1.4),
    Part.Circle(V(44.2, 47.3, 0), V(0, 0, 1), 1.4),
    Part.Circle(V(92.5, 48.5, 0), V(0, 0, 1), 1.4),
], False)
sketch10.addConstraint([
    Sketcher.Constraint("Equal", 0, 1),
    Sketcher.Constraint("Equal", 1, 2),
    Sketcher.Constraint("Equal", 2, 3),
    Sketcher.Constraint("Vertical", 0, 3, 2, 3),
    Sketcher.Constraint("Vertical", 1, 3, 3, 3),
    Sketcher.Constraint("Diameter", 0, Q("2.9 mm")),
    Sketcher.Constraint("DistanceX", -1, 1, 0, 3, Q("44.2 mm")),
    Sketcher.Constraint("DistanceX", -1, 1, 1, 3, Q("92.5 mm")),
    Sketcher.Constraint("DistanceY", 0, 3, 3, 3, Q("76.2 mm")),
    Sketcher.Constraint("DistanceY", 0, 3, -1, 1, Q("27.67 mm")),
    Sketcher.Constraint("DistanceY", 1, 3, -1, 1, Q("34.02 mm")),
    Sketcher.Constraint("DistanceY", -1, 1, 2, 3, Q("47.26 mm")),
])
pocket7 = body.newObject("PartDesign::Pocket", "Pocket006")
pocket7.Profile = sketch10
pocket7.Length = 15
pocket7.Reversed = True

# Sketch on XZ plane
sketch11 = body.newObject("Sketcher::SketchObject", "Sketch010")
sketch11.AttachmentSupport = (doc.getObject("XZ_Plane"), [""])
sketch11.MapMode = "FlatFace"
sketch11.AttachmentOffset = App.Placement(V(0, 0, -3), App.Rotation())
sketch11.addGeometry([
    Part.Circle(V(122.5, 45.5, 0), V(0, 0, 1), 0.9),
    Part.Circle(V(101.2, 84.5, 0), V(0, 0, 1), 0.9),
    Part.Circle(V(107.5, -12.5, 0), V(0, 0, 1), 1),
    Part.Circle(V(128.3, -12.5, 0), V(0, 0, 1), 1),
], False)
sketch11.addConstraint([
    Sketcher.Constraint("Equal", 0, 1),
    Sketcher.Constraint("Equal", 2, 3),
    Sketcher.Constraint("Horizontal", 2, 3, 3, 3),
    Sketcher.Constraint("Diameter", 2, Q("2 mm")),
    Sketcher.Constraint("Diameter", 0, Q("1.8 mm")),
    Sketcher.Constraint("DistanceY", 0, 3, 1, 3, Q("39 mm")),
    Sketcher.Constraint("DistanceX", 2, 3, 0, 3, Q("15 mm")),
    Sketcher.Constraint("DistanceX", -1, 1, 0, 3, Q("122.5 mm")),
    Sketcher.Constraint("DistanceX", -1, 1, 1, 3, Q("101.2 mm")),
    Sketcher.Constraint("DistanceX", -1, 1, 3, 3, Q("128.3 mm")),
    Sketcher.Constraint("DistanceY", -1, 1, 0, 3, Q("45.53 mm")),
    Sketcher.Constraint("DistanceY", 2, 3, -1, 1, Q("12.52 mm")),
])
pocket8 = body.newObject("PartDesign::Pocket", "Pocket007")
pocket8.Profile = sketch11
pocket8.Length = 20
pocket8.Reversed = True

# Sketch on XZ plane
sketch12 = body.newObject("Sketcher::SketchObject", "Sketch011")
sketch12.AttachmentSupport = (doc.getObject("XZ_Plane"), [""])
sketch12.MapMode = "FlatFace"
sketch12.AttachmentOffset = App.Placement(V(0, 0, -3), App.Rotation())
sketch12.addGeometry([
    Part.LineSegment(V(35, -75, 0), V(35, -48, 0)),  # 0
    Part.LineSegment(V(35, -48, 0), V(101, -48, 0)),  # 1
    Part.LineSegment(V(101, -48, 0), V(101, -75, 0)),  # 2
    Part.LineSegment(V(101, -75, 0), V(35, -75, 0)),  # 3
    Part.LineSegment(V(51, -19, 0), V(51, 33, 0)),  # 4
    Part.LineSegment(V(51, 33, 0), V(97, 33, 0)),  # 5
    Part.LineSegment(V(97, 33, 0), V(97, -19, 0)),  # 6
    Part.LineSegment(V(97, -19, 0), V(51, -19, 0)),  # 7
    Part.LineSegment(V(13, -10, 0), V(13, 14, 0)),  # 8
    Part.LineSegment(V(13, 14, 0), V(39, 14, 0)),  # 9
    Part.LineSegment(V(39, 14, 0), V(39, -10, 0)),  # 10
    Part.LineSegment(V(39, -10, 0), V(13, -10, 0)),  # 11
    Part.LineSegment(V(34, 61, 0), V(34, 75, 0)),  # 12
    Part.LineSegment(V(34, 75, 0), V(95, 75, 0)),  # 13
    Part.LineSegment(V(95, 75, 0), V(95, 61, 0)),  # 14
    Part.LineSegment(V(95, 61, 0), V(34, 61, 0)),  # 15
    Part.LineSegment(V(113, -52, 0), V(113, -21, 0)),  # 16
    Part.LineSegment(V(113, -21, 0), V(124, -21, 0)),  # 17
    Part.LineSegment(V(124, -21, 0), V(124, -52, 0)),  # 18
    Part.LineSegment(V(124, -52, 0), V(113, -52, 0)),  # 19
    Part.LineSegment(V(58, -40, 0), V(58, -27, 0)),  # 20
    Part.LineSegment(V(58, -27, 0), V(79, -27, 0)),  # 21
    Part.LineSegment(V(79, -27, 0), V(79, -40, 0)),  # 22
    Part.LineSegment(V(79, -40, 0), V(58, -40, 0)),  # 23
    Part.LineSegment(V(58, 41, 0), V(58, 52, 0)),  # 24
    Part.LineSegment(V(58, 52, 0), V(79, 52, 0)),  # 25
    Part.LineSegment(V(79, 52, 0), V(79, 41, 0)),  # 26
    Part.LineSegment(V(79, 41, 0), V(58, 41, 0)),  # 27
], False)
sketch12.addConstraint([
    Sketcher.Constraint("Coincident", 0, 2, 1, 1),
    Sketcher.Constraint("Coincident", 1, 2, 2, 1),
    Sketcher.Constraint("Coincident", 2, 2, 3, 1),
    Sketcher.Constraint("Coincident", 3, 2, 0, 1),
    Sketcher.Constraint("Coincident", 4, 2, 5, 1),
    Sketcher.Constraint("Coincident", 5, 2, 6, 1),
    Sketcher.Constraint("Coincident", 6, 2, 7, 1),
    Sketcher.Constraint("Coincident", 7, 2, 4, 1),
    Sketcher.Constraint("Coincident", 8, 2, 9, 1),
    Sketcher.Constraint("Coincident", 9, 2, 10, 1),
    Sketcher.Constraint("Coincident", 10, 2, 11, 1),
    Sketcher.Constraint("Coincident", 11, 2, 8, 1),
    Sketcher.Constraint("Coincident", 12, 2, 13, 1),
    Sketcher.Constraint("Coincident", 13, 2, 14, 1),
    Sketcher.Constraint("Coincident", 14, 2, 15, 1),
    Sketcher.Constraint("Coincident", 15, 2, 12, 1),
    Sketcher.Constraint("Coincident", 16, 2, 17, 1),
    Sketcher.Constraint("Coincident", 17, 2, 18, 1),
    Sketcher.Constraint("Coincident", 18, 2, 19, 1),
    Sketcher.Constraint("Coincident", 19, 2, 16, 1),
    Sketcher.Constraint("Coincident", 20, 2, 21, 1),
    Sketcher.Constraint("Coincident", 21, 2, 22, 1),
    Sketcher.Constraint("Coincident", 22, 2, 23, 1),
    Sketcher.Constraint("Coincident", 23, 2, 20, 1),
    Sketcher.Constraint("Coincident", 24, 2, 25, 1),
    Sketcher.Constraint("Coincident", 25, 2, 26, 1),
    Sketcher.Constraint("Coincident", 26, 2, 27, 1),
    Sketcher.Constraint("Coincident", 27, 2, 24, 1),
    Sketcher.Constraint("Vertical", 0),
    Sketcher.Constraint("Horizontal", 1),
    Sketcher.Constraint("Vertical", 2),
    Sketcher.Constraint("Horizontal", 3),
    Sketcher.Constraint("Vertical", 4),
    Sketcher.Constraint("Horizontal", 5),
    Sketcher.Constraint("Vertical", 6),
    Sketcher.Constraint("Horizontal", 7),
    Sketcher.Constraint("Vertical", 8),
    Sketcher.Constraint("Horizontal", 9),
    Sketcher.Constraint("Vertical", 10),
    Sketcher.Constraint("Horizontal", 11),
    Sketcher.Constraint("Vertical", 12),
    Sketcher.Constraint("Horizontal", 13),
    Sketcher.Constraint("Vertical", 14),
    Sketcher.Constraint("Horizontal", 15),
    Sketcher.Constraint("Vertical", 16),
    Sketcher.Constraint("Horizontal", 17),
    Sketcher.Constraint("Vertical", 18),
    Sketcher.Constraint("Horizontal", 19),
    Sketcher.Constraint("Vertical", 20),
    Sketcher.Constraint("Horizontal", 21),
    Sketcher.Constraint("Vertical", 22),
    Sketcher.Constraint("Horizontal", 23),
    Sketcher.Constraint("Vertical", 24),
    Sketcher.Constraint("Horizontal", 25),
    Sketcher.Constraint("Vertical", 26),
    Sketcher.Constraint("Horizontal", 27),
    Sketcher.Constraint("Vertical", 23, 2, 24, 2),
    Sketcher.Constraint("Vertical", 22, 2, 25, 2),
    Sketcher.Constraint("DistanceY", 8, 1, 8, 2, Q("23.884301 mm")),
    Sketcher.Constraint("DistanceY", 0, 1, 0, 2, Q("26.741509 mm")),
    Sketcher.Constraint("DistanceY", 4, 1, 4, 2, Q("52.394051 mm")),
    Sketcher.Constraint("DistanceY", 12, 1, 12, 2, Q("14.424559 mm")),
    Sketcher.Constraint("DistanceY", 24, 1, 24, 2, Q("11.735629 mm")),
    Sketcher.Constraint("DistanceX", 8, 2, 4, 2, Q("37.965801 mm")),
    Sketcher.Constraint("DistanceX", 13, 2, 5, 2, Q("2.495402 mm")),
    Sketcher.Constraint("DistanceX", 4, 2, 13, 2, Q("43.377501 mm")),
    Sketcher.Constraint("DistanceX", 1, 1, 1, 2, Q("65.824645 mm")),
    Sketcher.Constraint("DistanceX", 9, 1, 9, 2, Q("25.550648 mm")),
    Sketcher.Constraint("DistanceX", 13, 1, 13, 2, Q("60.583147 mm")),
    Sketcher.Constraint("DistanceX", 17, 1, 17, 2, Q("10.797204 mm")),
    Sketcher.Constraint("DistanceX", 21, 1, 21, 2, Q("21.530984 mm")),
    Sketcher.Constraint("DistanceY", 16, 1, 16, 2, Q("31.339068 mm")),
    Sketcher.Constraint("DistanceY", 20, 1, 20, 2, Q("12.727285 mm")),
    Sketcher.Constraint("DistanceY", 0, 2, -1, 1, Q("48.035828 mm")),
    Sketcher.Constraint("DistanceX", -1, 1, 4, 2, Q("51.33704 mm")),
    Sketcher.Constraint("DistanceY", -1, 1, 8, 2, Q("14.198649 mm")),
    Sketcher.Constraint("DistanceX", -1, 1, 16, 2, Q("112.731081 mm")),
    Sketcher.Constraint("DistanceX", -1, 1, 20, 2, Q("57.967492 mm")),
    Sketcher.Constraint("DistanceY", 20, 2, -1, 1, Q("26.892432 mm")),
    Sketcher.Constraint("DistanceY", 0, 2, 4, 2, Q("81.210581 mm")),
    Sketcher.Constraint("DistanceX", 4, 2, 1, 2, Q("49.965672 mm")),
    Sketcher.Constraint("DistanceY", 4, 2, 24, 2, Q("19.127072 mm")),
    Sketcher.Constraint("DistanceY", 24, 2, 15, 2, Q("8.333831 mm")),
    Sketcher.Constraint("DistanceY", 16, 2, -1, 1, Q("21.120115 mm")),
])
pocket9 = body.newObject("PartDesign::Pocket", "Pocket008")
pocket9.Profile = sketch12
pocket9.Length = 20
pocket9.Reversed = True

doc.recompute()
